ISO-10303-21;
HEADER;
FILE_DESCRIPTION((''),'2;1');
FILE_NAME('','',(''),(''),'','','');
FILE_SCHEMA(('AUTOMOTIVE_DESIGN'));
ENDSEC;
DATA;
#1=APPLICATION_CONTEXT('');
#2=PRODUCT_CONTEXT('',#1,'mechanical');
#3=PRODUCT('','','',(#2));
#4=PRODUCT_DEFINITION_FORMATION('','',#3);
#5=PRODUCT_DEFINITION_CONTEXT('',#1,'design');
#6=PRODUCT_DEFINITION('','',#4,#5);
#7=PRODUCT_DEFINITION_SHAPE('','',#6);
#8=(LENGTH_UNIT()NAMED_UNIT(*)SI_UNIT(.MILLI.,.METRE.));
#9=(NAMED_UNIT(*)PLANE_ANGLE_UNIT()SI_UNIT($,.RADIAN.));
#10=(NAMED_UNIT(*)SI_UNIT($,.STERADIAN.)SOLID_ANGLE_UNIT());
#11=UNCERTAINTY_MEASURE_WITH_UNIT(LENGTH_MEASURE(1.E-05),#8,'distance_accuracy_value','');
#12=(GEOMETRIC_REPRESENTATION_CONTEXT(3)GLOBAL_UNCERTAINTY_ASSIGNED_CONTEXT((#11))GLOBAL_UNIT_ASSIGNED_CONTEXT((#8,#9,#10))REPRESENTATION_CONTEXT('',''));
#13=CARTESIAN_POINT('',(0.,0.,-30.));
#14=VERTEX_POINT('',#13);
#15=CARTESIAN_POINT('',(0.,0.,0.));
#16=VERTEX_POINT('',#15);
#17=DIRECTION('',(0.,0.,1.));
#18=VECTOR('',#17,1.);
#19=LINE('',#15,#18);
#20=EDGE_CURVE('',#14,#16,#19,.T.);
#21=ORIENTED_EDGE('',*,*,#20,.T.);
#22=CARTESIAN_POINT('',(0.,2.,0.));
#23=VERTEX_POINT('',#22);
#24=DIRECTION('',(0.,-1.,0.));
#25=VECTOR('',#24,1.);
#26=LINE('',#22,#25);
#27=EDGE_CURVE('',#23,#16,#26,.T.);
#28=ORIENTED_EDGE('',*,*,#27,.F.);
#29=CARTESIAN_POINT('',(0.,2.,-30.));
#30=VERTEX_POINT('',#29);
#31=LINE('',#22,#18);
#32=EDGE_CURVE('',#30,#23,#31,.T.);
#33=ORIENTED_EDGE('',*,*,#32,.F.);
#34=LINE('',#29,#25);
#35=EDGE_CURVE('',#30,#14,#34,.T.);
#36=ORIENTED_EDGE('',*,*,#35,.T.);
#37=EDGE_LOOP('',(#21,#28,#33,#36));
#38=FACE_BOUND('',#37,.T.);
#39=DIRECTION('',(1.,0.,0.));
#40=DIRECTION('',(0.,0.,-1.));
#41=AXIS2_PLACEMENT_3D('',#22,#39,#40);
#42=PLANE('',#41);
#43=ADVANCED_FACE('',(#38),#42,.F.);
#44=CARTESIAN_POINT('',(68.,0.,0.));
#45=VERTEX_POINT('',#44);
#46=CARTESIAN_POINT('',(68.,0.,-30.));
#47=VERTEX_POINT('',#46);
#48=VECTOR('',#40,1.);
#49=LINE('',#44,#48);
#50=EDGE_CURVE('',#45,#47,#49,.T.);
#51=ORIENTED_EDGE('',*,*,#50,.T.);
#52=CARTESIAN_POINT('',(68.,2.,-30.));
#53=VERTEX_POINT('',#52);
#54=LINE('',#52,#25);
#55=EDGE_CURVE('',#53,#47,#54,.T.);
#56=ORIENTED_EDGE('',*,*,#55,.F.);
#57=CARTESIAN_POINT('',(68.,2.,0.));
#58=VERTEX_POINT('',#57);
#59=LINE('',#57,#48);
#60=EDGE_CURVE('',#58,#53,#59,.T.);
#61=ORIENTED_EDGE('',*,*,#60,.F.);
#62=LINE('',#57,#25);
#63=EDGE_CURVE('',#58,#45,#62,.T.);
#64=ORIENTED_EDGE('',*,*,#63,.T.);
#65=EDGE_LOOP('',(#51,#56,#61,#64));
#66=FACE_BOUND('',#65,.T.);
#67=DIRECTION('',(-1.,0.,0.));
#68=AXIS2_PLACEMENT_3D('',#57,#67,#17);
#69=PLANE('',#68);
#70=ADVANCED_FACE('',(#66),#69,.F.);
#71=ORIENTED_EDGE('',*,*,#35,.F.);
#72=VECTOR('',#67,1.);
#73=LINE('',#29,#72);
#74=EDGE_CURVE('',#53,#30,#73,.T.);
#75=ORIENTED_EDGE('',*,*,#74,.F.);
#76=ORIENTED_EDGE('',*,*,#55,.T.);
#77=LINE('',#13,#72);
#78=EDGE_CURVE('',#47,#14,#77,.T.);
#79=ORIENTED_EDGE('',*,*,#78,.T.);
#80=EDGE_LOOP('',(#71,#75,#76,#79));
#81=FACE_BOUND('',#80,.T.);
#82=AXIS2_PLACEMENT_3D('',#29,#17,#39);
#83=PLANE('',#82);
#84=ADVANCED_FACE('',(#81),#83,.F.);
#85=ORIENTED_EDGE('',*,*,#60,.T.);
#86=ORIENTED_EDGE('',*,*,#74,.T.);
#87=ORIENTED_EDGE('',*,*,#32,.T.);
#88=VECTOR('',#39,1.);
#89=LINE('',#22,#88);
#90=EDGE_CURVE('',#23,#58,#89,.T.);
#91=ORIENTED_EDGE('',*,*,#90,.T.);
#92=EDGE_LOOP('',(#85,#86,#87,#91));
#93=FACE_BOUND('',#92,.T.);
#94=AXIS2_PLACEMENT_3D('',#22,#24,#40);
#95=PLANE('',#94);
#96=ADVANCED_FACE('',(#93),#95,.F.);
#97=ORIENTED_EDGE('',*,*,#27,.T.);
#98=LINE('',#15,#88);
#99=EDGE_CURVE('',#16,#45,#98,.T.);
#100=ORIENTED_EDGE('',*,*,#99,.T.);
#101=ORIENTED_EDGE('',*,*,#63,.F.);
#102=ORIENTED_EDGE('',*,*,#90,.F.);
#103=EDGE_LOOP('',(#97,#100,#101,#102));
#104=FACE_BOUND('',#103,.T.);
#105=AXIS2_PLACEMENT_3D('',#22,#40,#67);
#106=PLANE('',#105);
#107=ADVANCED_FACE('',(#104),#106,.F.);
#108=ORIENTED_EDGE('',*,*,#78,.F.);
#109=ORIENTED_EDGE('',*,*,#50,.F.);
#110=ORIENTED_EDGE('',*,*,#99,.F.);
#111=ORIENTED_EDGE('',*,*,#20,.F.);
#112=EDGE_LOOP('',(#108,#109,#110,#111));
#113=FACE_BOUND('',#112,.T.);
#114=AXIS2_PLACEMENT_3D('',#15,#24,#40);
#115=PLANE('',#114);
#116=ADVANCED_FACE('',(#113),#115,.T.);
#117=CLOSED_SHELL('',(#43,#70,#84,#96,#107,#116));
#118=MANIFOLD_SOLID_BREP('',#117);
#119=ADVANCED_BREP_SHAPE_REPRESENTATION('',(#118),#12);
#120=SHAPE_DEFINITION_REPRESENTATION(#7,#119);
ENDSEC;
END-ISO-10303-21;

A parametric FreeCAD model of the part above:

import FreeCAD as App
import Part
import Sketcher

V = App.Vector

doc = App.newDocument("Part")
body = doc.addObject("PartDesign::Body", "Body")

# Sketch on XZ plane
sketch1 = body.newObject("Sketcher::SketchObject", "Sketch")
sketch1.AttachmentSupport = (doc.getObject("XZ_Plane"), [""])
sketch1.MapMode = "FlatFace"
sketch1.addGeometry([
    Part.LineSegment(V(0, -30, 0), V(0, 0, 0)),
    Part.LineSegment(V(0, 0, 0), V(68, 0, 0)),
    Part.LineSegment(V(68, 0, 0), V(68, -30, 0)),
    Part.LineSegment(V(68, -30, 0), V(0, -30, 0)),
], False)
sketch1.addConstraint([
    Sketcher.Constraint("Coincident", 0, 2, 1, 1),
    Sketcher.Constraint("Coincident", 1, 2, 2, 1),
    Sketcher.Constraint("Coincident", 2, 2, 3, 1),
    Sketcher.Constraint("Coincident", 3, 2, 0, 1),
    Sketcher.Constraint("Vertical", 0),
    Sketcher.Constraint("Horizontal", 1),
    Sketcher.Constraint("Vertical", 2),
    Sketcher.Constraint("Horizontal", 3),
    Sketcher.Constraint("Coincident", 0, 2, -1, 1),
    Sketcher.Constraint("DistanceX", 1, 1, 1, 2, 68.0),
    Sketcher.Constraint("DistanceY", 0, 1, 0, 2, 30.0),
])
pad1 = body.newObject("PartDesign::Pad", "Pad")
pad1.Profile = sketch1
pad1.Length = 2
pad1.Reversed = True

doc.recompute()
